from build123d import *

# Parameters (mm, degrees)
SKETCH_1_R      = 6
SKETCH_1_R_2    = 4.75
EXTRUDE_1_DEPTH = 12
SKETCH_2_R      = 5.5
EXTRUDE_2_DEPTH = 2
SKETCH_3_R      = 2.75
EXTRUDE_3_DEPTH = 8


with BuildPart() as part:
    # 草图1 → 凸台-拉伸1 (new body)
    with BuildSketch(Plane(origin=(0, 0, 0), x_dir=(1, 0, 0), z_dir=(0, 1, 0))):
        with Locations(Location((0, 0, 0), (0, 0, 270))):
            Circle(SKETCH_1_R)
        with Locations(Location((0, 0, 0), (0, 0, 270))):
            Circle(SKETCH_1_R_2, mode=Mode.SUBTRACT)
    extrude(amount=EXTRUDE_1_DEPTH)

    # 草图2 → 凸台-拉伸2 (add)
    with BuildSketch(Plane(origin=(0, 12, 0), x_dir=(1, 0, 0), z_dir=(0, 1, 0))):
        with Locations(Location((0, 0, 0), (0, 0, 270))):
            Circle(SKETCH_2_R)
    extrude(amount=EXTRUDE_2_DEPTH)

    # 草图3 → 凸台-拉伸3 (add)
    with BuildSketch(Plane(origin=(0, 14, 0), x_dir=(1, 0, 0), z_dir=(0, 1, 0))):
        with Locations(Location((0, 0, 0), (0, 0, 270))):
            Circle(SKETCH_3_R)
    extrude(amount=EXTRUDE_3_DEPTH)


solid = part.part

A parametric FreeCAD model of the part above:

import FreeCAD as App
import Part
import Sketcher
from FreeCAD import Vector

doc = App.newDocument("Part")
body = doc.addObject("PartDesign::Body", "Body")

sketch1 = doc.addObject("Sketcher::SketchObject", "Sketch")
body.addObject(sketch1)
sketch1.AttachmentSupport = (doc.XZ_Plane, [""])
sketch1.MapMode = "FlatFace"
sketch1.addGeometry([
    Part.Circle(Vector(0, 0, 0), Vector(0, 0, 1), 6),
    Part.Circle(Vector(0, 0, 0), Vector(0, 0, 1), 4.8),
], False)
sketch1.addConstraint([
    Sketcher.Constraint("Coincident", 0, 3, -1, 1),
    Sketcher.Constraint("Coincident", 1, 3, -1, 1),
    Sketcher.Constraint("Diameter", 0, 12.0),
    Sketcher.Constraint("Diameter", 1, 9.5),
])
pad1 = doc.addObject("PartDesign::Pad", "Pad")
body.addObject(pad1)
pad1.Profile = sketch1
pad1.Length = 12
pad1.Reversed = True

sketch2 = doc.addObject("Sketcher::SketchObject", "Sketch001")
body.addObject(sketch2)
sketch2.AttachmentSupport = (doc.XZ_Plane, [""])
sketch2.MapMode = "FlatFace"
sketch2.AttachmentOffset = App.Placement(Vector(0, 0, -12), App.Rotation())
sketch2.addGeometry(Part.Circle(Vector(0, 0, 0), Vector(0, 0, 1), 6), False)
sketch2.addConstraint([
    Sketcher.Constraint("Coincident", 0, 3, -1, 1),
    Sketcher.Constraint("Diameter", 0, 11.0),
])
pad2 = doc.addObject("PartDesign::Pad", "Pad001")
body.addObject(pad2)
pad2.Profile = sketch2
pad2.Length = 2
pad2.Reversed = True

sketch3 = doc.addObject("Sketcher::SketchObject", "Sketch002")
body.addObject(sketch3)
sketch3.AttachmentSupport = (doc.XZ_Plane, [""])
sketch3.MapMode = "FlatFace"
sketch3.AttachmentOffset = App.Placement(Vector(0, 0, -14), App.Rotation())
sketch3.addGeometry(Part.Circle(Vector(0, 0, 0), Vector(0, 0, 1), 2.8), False)
sketch3.addConstraint([
    Sketcher.Constraint("Coincident", 0, 3, -1, 1),
    Sketcher.Constraint("Diameter", 0, 5.5),
])
pad3 = doc.addObject("PartDesign::Pad", "Pad002")
body.addObject(pad3)
pad3.Profile = sketch3
pad3.Length = 8
pad3.Reversed = True

doc.recompute()
